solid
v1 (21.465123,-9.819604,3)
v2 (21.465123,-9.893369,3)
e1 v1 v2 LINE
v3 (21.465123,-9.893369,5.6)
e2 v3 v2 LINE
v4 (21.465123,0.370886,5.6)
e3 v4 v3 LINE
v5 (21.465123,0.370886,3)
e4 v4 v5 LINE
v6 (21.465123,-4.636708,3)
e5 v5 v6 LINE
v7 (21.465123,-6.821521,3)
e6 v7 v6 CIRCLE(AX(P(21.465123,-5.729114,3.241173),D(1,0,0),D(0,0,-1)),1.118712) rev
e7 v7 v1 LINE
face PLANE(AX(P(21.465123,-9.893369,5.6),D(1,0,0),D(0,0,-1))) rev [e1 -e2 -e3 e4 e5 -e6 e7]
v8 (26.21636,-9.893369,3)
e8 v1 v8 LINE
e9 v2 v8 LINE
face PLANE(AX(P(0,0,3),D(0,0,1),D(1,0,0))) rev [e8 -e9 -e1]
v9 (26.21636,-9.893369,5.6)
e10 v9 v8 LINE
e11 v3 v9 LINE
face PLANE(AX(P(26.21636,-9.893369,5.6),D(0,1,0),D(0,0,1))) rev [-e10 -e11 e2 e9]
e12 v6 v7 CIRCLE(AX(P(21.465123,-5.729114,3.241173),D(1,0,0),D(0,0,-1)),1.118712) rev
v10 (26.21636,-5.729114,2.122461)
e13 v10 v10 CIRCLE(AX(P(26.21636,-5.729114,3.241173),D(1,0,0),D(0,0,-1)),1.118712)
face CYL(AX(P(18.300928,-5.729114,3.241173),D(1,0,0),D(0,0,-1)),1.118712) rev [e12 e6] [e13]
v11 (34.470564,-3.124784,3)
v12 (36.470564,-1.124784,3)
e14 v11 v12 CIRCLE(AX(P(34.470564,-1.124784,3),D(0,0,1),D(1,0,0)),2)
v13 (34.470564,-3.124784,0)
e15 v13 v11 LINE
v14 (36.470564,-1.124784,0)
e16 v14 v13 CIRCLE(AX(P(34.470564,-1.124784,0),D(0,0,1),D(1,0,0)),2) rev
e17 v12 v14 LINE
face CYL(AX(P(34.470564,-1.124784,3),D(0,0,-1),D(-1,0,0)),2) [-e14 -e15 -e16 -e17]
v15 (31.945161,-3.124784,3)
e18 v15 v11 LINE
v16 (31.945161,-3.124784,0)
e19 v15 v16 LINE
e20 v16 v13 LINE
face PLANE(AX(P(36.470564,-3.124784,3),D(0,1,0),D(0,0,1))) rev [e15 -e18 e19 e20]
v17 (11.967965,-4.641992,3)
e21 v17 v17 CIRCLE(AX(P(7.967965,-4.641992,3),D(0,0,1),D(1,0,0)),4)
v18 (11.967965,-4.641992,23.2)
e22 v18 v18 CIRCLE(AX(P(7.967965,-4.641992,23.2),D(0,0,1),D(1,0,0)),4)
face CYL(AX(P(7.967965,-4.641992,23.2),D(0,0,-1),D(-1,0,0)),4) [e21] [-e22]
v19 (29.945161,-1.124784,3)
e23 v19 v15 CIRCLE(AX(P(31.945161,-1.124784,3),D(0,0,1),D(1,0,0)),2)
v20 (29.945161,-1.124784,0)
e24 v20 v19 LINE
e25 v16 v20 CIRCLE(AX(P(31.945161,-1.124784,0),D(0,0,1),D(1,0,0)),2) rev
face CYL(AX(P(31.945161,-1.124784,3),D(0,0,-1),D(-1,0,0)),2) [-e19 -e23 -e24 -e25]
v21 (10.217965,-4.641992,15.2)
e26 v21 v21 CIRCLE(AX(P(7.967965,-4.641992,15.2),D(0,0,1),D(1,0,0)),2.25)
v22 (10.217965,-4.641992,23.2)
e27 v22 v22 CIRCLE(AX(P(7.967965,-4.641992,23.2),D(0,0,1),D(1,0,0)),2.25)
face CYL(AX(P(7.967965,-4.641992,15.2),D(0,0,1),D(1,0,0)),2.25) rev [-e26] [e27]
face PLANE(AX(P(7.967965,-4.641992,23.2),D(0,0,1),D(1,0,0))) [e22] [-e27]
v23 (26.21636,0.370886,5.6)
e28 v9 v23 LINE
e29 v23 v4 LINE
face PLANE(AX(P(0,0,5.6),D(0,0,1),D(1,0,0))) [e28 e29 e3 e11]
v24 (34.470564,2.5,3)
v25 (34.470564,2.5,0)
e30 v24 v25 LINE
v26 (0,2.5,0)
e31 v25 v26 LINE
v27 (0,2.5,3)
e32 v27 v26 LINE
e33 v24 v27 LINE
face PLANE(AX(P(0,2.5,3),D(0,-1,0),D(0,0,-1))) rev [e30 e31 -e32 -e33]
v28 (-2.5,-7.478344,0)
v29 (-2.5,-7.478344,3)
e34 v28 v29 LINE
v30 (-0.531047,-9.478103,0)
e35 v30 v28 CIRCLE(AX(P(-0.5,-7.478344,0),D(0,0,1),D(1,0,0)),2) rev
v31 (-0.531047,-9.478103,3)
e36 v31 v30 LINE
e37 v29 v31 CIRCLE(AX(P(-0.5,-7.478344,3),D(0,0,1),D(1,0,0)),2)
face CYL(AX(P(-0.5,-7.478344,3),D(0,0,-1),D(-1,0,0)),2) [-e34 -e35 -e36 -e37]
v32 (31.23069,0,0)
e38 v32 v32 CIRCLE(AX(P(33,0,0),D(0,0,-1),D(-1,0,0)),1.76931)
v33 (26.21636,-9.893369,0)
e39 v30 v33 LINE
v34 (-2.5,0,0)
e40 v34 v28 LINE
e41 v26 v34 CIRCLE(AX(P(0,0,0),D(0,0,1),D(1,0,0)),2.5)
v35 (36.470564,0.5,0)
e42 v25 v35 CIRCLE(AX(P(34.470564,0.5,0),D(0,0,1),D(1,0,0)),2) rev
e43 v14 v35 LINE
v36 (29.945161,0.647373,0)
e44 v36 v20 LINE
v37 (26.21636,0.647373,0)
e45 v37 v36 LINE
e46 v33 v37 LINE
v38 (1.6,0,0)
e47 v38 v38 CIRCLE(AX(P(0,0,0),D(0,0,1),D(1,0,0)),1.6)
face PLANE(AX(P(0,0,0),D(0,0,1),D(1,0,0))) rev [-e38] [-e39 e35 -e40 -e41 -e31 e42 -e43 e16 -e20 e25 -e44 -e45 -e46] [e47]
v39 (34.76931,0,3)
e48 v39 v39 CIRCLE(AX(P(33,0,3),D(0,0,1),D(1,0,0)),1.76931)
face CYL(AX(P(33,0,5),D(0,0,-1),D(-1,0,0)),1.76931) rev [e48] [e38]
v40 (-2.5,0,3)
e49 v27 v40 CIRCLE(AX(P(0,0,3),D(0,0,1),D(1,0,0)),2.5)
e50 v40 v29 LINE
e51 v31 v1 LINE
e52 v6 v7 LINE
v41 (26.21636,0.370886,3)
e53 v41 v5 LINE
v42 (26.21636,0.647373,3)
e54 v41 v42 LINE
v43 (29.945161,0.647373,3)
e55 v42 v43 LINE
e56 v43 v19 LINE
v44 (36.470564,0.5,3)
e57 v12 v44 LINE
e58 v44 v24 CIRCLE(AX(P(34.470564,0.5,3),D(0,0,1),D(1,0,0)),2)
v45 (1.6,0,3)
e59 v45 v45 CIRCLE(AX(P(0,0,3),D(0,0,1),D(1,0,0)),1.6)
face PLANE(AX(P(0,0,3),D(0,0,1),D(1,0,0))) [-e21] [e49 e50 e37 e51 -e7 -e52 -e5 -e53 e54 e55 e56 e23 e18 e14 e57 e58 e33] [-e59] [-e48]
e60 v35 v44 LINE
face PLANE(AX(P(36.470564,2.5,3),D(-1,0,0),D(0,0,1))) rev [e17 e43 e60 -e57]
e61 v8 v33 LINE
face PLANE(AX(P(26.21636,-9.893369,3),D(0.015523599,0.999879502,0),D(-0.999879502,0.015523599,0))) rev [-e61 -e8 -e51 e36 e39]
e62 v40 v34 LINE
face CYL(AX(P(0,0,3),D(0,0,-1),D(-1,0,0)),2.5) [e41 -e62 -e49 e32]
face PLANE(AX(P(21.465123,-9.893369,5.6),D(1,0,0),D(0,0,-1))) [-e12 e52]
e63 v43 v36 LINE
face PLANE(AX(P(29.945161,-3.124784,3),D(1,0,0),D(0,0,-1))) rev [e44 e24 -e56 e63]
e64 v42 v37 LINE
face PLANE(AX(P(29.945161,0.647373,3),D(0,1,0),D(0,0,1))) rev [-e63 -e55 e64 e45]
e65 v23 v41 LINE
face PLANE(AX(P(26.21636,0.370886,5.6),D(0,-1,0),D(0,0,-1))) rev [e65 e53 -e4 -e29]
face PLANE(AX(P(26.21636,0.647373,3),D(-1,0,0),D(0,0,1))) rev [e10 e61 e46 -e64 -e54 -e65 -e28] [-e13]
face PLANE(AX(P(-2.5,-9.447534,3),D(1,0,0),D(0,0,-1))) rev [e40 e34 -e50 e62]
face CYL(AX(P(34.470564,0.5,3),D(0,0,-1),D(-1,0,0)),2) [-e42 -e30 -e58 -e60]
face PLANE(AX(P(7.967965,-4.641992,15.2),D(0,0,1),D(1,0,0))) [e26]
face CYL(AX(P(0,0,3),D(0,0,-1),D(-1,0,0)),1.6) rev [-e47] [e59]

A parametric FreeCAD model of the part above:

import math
import FreeCAD as App
import Part
import Sketcher
from FreeCAD import Vector
Q = App.Units.Quantity


def edges_at(feature, points):
    """Names of the edges that pass closest to the given points."""
    edges = feature.Shape.Edges
    near = lambda p: min(range(len(edges)), key=lambda i: edges[i].distToShape(Part.Vertex(*p))[0])
    return sorted({f"Edge{near(p) + 1}" for p in points})

doc = App.newDocument("Part")
body = doc.addObject("PartDesign::Body", "Body")

sketch1 = body.newObject("Sketcher::SketchObject", "Sketch")
sketch1.AttachmentSupport = (doc.getObject("XY_Plane"), [""])
sketch1.MapMode = "FlatFace"
sketch1.addGeometry(Part.LineSegment(Vector(36.470564, 2.5, 0), Vector(0, 2.5, 0)), False)
sketch1.addGeometry(Part.ArcOfCircle(Part.Circle(Vector(0, 0, 0), Vector(0, 0, 1), 2.5), math.radians(90), math.radians(180)), False)
sketch1.addGeometry(Part.LineSegment(Vector(-2.5, 0, 0), Vector(-2.5, -9.447534, 0)), False)
sketch1.addGeometry(Part.LineSegment(Vector(-2.5, -9.447534, 0), Vector(26.21636, -9.893369, 0)), False)
sketch1.addGeometry(Part.LineSegment(Vector(26.21636, -9.893369, 0), Vector(26.21636, 0.647373, 0)), False)
sketch1.addGeometry(Part.LineSegment(Vector(26.21636, 0.647373, 0), Vector(29.945161, 0.647373, 0)), False)
sketch1.addGeometry(Part.LineSegment(Vector(29.945161, 0.647373, 0), Vector(29.945161, -3.124784, 0)), False)
sketch1.addGeometry(Part.LineSegment(Vector(29.945161, -3.124784, 0), Vector(36.470564, -3.124784, 0)), False)
sketch1.addGeometry(Part.LineSegment(Vector(36.470564, -3.124784, 0), Vector(36.470564, 2.5, 0)), False)
sketch1.addGeometry(Part.Circle(Vector(0, 0, 0), Vector(0, 0, 1), 1.6), False)
sketch1.addConstraint(Sketcher.Constraint("Tangent", 0, 2, 1, 1))
sketch1.addConstraint(Sketcher.Constraint("Tangent", 1, 2, 2, 1))
sketch1.addConstraint(Sketcher.Constraint("Coincident", 2, 2, 3, 1))
sketch1.addConstraint(Sketcher.Constraint("Coincident", 3, 2, 4, 1))
sketch1.addConstraint(Sketcher.Constraint("Coincident", 4, 2, 5, 1))
sketch1.addConstraint(Sketcher.Constraint("Coincident", 5, 2, 6, 1))
sketch1.addConstraint(Sketcher.Constraint("Coincident", 6, 2, 7, 1))
sketch1.addConstraint(Sketcher.Constraint("Coincident", 7, 2, 8, 1))
sketch1.addConstraint(Sketcher.Constraint("Coincident", 8, 2, 0, 1))
sketch1.addConstraint(Sketcher.Constraint("Horizontal", 0))
sketch1.addConstraint(Sketcher.Constraint("Vertical", 2))
sketch1.addConstraint(Sketcher.Constraint("Vertical", 4))
sketch1.addConstraint(Sketcher.Constraint("Horizontal", 5))
sketch1.addConstraint(Sketcher.Constraint("Vertical", 6))
sketch1.addConstraint(Sketcher.Constraint("Horizontal", 7))
sketch1.addConstraint(Sketcher.Constraint("Vertical", 8))
sketch1.addConstraint(Sketcher.Constraint("Coincident", 1, 3, -1, 1))
sketch1.addConstraint(Sketcher.Constraint("Coincident", 9, 3, -1, 1))
sketch1.addConstraint(Sketcher.Constraint("Diameter", 9, Q("3.2 mm")))
sketch1.addConstraint(Sketcher.Constraint("Radius", 1, Q("2.5 mm")))
sketch1.addConstraint(Sketcher.Constraint("DistanceX", 5, 1, 5, 2, Q("3.728802 mm")))
sketch1.addConstraint(Sketcher.Constraint("Distance", 3, Q("28.71982 mm")))
sketch1.addConstraint(Sketcher.Constraint("DistanceX", 0, 2, 0, 1, Q("36.470564 mm")))
sketch1.addConstraint(Sketcher.Constraint("DistanceX", 7, 1, 7, 2, Q("6.525403 mm")))
sketch1.addConstraint(Sketcher.Constraint("DistanceY", 2, 2, 2, 1, Q("9.447534 mm")))
sketch1.addConstraint(Sketcher.Constraint("DistanceY", 4, 1, 4, 2, Q("10.540743 mm")))
sketch1.addConstraint(Sketcher.Constraint("DistanceY", 6, 2, 6, 1, Q("3.772157 mm")))
pad1 = body.newObject("PartDesign::Pad", "Pad")
pad1.Profile = sketch1
pad1.Length = 3

sketch2 = body.newObject("Sketcher::SketchObject", "Sketch001")
sketch2.AttachmentSupport = (doc.getObject("XY_Plane"), [""])
sketch2.MapMode = "FlatFace"
sketch2.AttachmentOffset = App.Placement(Vector(0, 0, 3), App.Rotation())
sketch2.addGeometry(Part.LineSegment(Vector(21.465123, 0.370886, 0), Vector(21.465123, -9.893369, 0)), False)
sketch2.addGeometry(Part.LineSegment(Vector(21.465123, -9.893369, 0), Vector(26.21636, -9.893369, 0)), False)
sketch2.addGeometry(Part.LineSegment(Vector(26.21636, -9.893369, 0), Vector(26.21636, 0.370886, 0)), False)
sketch2.addGeometry(Part.LineSegment(Vector(26.21636, 0.370886, 0), Vector(21.465123, 0.370886, 0)), False)
sketch2.addConstraint(Sketcher.Constraint("Coincident", 0, 2, 1, 1))
sketch2.addConstraint(Sketcher.Constraint("Coincident", 1, 2, 2, 1))
sketch2.addConstraint(Sketcher.Constraint("Coincident", 2, 2, 3, 1))
sketch2.addConstraint(Sketcher.Constraint("Coincident", 3, 2, 0, 1))
sketch2.addConstraint(Sketcher.Constraint("Vertical", 0))
sketch2.addConstraint(Sketcher.Constraint("Horizontal", 1))
sketch2.addConstraint(Sketcher.Constraint("Vertical", 2))
sketch2.addConstraint(Sketcher.Constraint("Horizontal", 3))
sketch2.addConstraint(Sketcher.Constraint("DistanceX", 1, 1, 1, 2, Q("4.751236 mm")))
sketch2.addConstraint(Sketcher.Constraint("DistanceY", 0, 2, 0, 1, Q("10.264255 mm")))
sketch2.addConstraint(Sketcher.Constraint("DistanceY", 0, 2, -1, 1, Q("9.893369 mm")))
sketch2.addConstraint(Sketcher.Constraint("DistanceX", -1, 1, 1, 2, Q("26.21636 mm")))
pad2 = body.newObject("PartDesign::Pad", "Pad001")
pad2.Profile = sketch2
pad2.Length = 2.6

sketch3 = body.newObject("Sketcher::SketchObject", "Sketch002")
sketch3.AttachmentSupport = (doc.getObject("YZ_Plane"), [""])
sketch3.MapMode = "FlatFace"
sketch3.AttachmentOffset = App.Placement(Vector(0, 0, 26.21636), App.Rotation())
sketch3.addGeometry(Part.Circle(Vector(-5.729114, 3.241173, 0), Vector(0, 0, 1), 1.118712), False)
sketch3.addConstraint(Sketcher.Constraint("Diameter", 0, Q("2.237424 mm")))
sketch3.addConstraint(Sketcher.Constraint("DistanceX", 0, 3, -1, 1, Q("5.729114 mm")))
sketch3.addConstraint(Sketcher.Constraint("DistanceY", -1, 1, 0, 3, Q("3.241173 mm")))
pocket1 = body.newObject("PartDesign::Pocket", "Pocket")
pocket1.Profile = sketch3
pocket1.Length = 4.751236

sketch4 = body.newObject("Sketcher::SketchObject", "Sketch003")
sketch4.AttachmentSupport = (doc.getObject("XY_Plane"), [""])
sketch4.MapMode = "FlatFace"
sketch4.addGeometry(Part.Circle(Vector(33, 0, 0), Vector(0, 0, 1), 1.76931), False)
sketch4.addConstraint(Sketcher.Constraint("PointOnObject", 0, 3, -1))
sketch4.addConstraint(Sketcher.Constraint("DistanceX", -1, 1, 0, 3, Q("33 mm")))
sketch4.addConstraint(Sketcher.Constraint("Diameter", 0, Q("3.53862 mm")))
pocket2 = body.newObject("PartDesign::Pocket", "Pocket001")
pocket2.Profile = sketch4
pocket2.Length = 5
pocket2.Reversed = True

sketch5 = body.newObject("Sketcher::SketchObject", "Sketch004")
sketch5.AttachmentSupport = (doc.getObject("XY_Plane"), [""])
sketch5.MapMode = "FlatFace"
sketch5.AttachmentOffset = App.Placement(Vector(0, 0, 3), App.Rotation())
sketch5.addGeometry(Part.Circle(Vector(7.967965, -4.641992, 0), Vector(0, 0, 1), 4), False)
sketch5.addConstraint(Sketcher.Constraint("Diameter", 0, Q("8 mm")))
sketch5.addConstraint(Sketcher.Constraint("DistanceX", -1, 1, 0, 3, Q("7.967965 mm")))
sketch5.addConstraint(Sketcher.Constraint("DistanceY", 0, 3, -1, 1, Q("4.641992 mm")))
pad3 = body.newObject("PartDesign::Pad", "Pad002")
pad3.Profile = sketch5
pad3.Length = 20.2

sketch6 = body.newObject("Sketcher::SketchObject", "Sketch005")
sketch6.AttachmentSupport = (doc.getObject("XY_Plane"), [""])
sketch6.MapMode = "FlatFace"
sketch6.AttachmentOffset = App.Placement(Vector(0, 0, 23.2), App.Rotation())
sketch6.addGeometry(Part.Circle(Vector(7.967965, -4.641992, 0), Vector(0, 0, 1), 2.25), False)
sketch6.addConstraint(Sketcher.Constraint("Diameter", 0, Q("4.5 mm")))
sketch6.addConstraint(Sketcher.Constraint("DistanceX", -1, 1, 0, 3, Q("7.967965 mm")))
sketch6.addConstraint(Sketcher.Constraint("DistanceY", 0, 3, -1, 1, Q("4.641992 mm")))
pocket3 = body.newObject("PartDesign::Pocket", "Pocket002")
pocket3.Profile = sketch6
pocket3.Length = 8
doc.recompute()

fillet = body.newObject("PartDesign::Fillet", "Fillet")
fillet.Base = (pocket3, edges_at(pocket3, [
    (36.471, 2.5, 1.5),
    (36.471, -3.125, 1.5),
    (29.945, -3.125, 1.5),
    (-2.5, -9.448, 1.5),
]))
fillet.Radius = 2

doc.recompute()
